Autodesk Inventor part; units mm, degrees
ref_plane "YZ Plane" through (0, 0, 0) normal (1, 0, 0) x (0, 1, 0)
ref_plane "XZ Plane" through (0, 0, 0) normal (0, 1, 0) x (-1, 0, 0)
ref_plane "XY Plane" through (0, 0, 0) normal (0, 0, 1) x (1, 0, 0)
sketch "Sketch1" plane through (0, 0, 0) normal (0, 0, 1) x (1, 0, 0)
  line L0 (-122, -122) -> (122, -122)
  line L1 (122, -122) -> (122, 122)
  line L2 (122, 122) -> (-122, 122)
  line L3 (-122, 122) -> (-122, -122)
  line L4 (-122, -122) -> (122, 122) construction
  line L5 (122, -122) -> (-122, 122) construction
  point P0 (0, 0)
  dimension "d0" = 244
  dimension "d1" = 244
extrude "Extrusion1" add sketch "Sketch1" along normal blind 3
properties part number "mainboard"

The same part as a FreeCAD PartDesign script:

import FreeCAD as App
import Part
import Sketcher
from FreeCAD import Vector

doc = App.newDocument("Part")
params = doc.addObject("Spreadsheet::Sheet", "Params")
for row, (alias, value) in enumerate([
    ("sketch1_width", "244 mm"),
    ("pad1_length", "3 mm"),
], start=1):
    params.set(f"A{row}", alias)
    params.set(f"B{row}", "=" + value)
    params.setAlias(f"B{row}", alias)

body = doc.addObject("PartDesign::Body", "Body")

sketch1 = body.newObject("Sketcher::SketchObject", "Sketch")
sketch1.AttachmentSupport = (doc.getObject("XY_Plane"), [""])
sketch1.MapMode = "FlatFace"
sketch1.addGeometry([
    Part.LineSegment(Vector(-122, 122, 0), Vector(-122, -122, 0)),
    Part.LineSegment(Vector(-122, -122, 0), Vector(122, -122, 0)),
    Part.LineSegment(Vector(122, -122, 0), Vector(122, 122, 0)),
    Part.LineSegment(Vector(122, 122, 0), Vector(-122, 122, 0)),
], False)
sketch1.addConstraint([
    Sketcher.Constraint("Coincident", 0, 2, 1, 1),
    Sketcher.Constraint("Coincident", 1, 2, 2, 1),
    Sketcher.Constraint("Coincident", 2, 2, 3, 1),
    Sketcher.Constraint("Coincident", 3, 2, 0, 1),
    Sketcher.Constraint("Vertical", 0),
    Sketcher.Constraint("Horizontal", 1),
    Sketcher.Constraint("Vertical", 2),
    Sketcher.Constraint("Horizontal", 3),
    Sketcher.Constraint("Symmetric", 0, 2, 2, 2, -1, 1),
    Sketcher.Constraint("Equal", 3, 0),
    Sketcher.Constraint("DistanceX", 1, 1, 1, 2, 244.0),
])
sketch1.setExpression("Constraints[10]", "Params.sketch1_width")
pad1 = body.newObject("PartDesign::Pad", "Pad")
pad1.Profile = sketch1
pad1.setExpression("Length", "Params.pad1_length")

doc.recompute()
